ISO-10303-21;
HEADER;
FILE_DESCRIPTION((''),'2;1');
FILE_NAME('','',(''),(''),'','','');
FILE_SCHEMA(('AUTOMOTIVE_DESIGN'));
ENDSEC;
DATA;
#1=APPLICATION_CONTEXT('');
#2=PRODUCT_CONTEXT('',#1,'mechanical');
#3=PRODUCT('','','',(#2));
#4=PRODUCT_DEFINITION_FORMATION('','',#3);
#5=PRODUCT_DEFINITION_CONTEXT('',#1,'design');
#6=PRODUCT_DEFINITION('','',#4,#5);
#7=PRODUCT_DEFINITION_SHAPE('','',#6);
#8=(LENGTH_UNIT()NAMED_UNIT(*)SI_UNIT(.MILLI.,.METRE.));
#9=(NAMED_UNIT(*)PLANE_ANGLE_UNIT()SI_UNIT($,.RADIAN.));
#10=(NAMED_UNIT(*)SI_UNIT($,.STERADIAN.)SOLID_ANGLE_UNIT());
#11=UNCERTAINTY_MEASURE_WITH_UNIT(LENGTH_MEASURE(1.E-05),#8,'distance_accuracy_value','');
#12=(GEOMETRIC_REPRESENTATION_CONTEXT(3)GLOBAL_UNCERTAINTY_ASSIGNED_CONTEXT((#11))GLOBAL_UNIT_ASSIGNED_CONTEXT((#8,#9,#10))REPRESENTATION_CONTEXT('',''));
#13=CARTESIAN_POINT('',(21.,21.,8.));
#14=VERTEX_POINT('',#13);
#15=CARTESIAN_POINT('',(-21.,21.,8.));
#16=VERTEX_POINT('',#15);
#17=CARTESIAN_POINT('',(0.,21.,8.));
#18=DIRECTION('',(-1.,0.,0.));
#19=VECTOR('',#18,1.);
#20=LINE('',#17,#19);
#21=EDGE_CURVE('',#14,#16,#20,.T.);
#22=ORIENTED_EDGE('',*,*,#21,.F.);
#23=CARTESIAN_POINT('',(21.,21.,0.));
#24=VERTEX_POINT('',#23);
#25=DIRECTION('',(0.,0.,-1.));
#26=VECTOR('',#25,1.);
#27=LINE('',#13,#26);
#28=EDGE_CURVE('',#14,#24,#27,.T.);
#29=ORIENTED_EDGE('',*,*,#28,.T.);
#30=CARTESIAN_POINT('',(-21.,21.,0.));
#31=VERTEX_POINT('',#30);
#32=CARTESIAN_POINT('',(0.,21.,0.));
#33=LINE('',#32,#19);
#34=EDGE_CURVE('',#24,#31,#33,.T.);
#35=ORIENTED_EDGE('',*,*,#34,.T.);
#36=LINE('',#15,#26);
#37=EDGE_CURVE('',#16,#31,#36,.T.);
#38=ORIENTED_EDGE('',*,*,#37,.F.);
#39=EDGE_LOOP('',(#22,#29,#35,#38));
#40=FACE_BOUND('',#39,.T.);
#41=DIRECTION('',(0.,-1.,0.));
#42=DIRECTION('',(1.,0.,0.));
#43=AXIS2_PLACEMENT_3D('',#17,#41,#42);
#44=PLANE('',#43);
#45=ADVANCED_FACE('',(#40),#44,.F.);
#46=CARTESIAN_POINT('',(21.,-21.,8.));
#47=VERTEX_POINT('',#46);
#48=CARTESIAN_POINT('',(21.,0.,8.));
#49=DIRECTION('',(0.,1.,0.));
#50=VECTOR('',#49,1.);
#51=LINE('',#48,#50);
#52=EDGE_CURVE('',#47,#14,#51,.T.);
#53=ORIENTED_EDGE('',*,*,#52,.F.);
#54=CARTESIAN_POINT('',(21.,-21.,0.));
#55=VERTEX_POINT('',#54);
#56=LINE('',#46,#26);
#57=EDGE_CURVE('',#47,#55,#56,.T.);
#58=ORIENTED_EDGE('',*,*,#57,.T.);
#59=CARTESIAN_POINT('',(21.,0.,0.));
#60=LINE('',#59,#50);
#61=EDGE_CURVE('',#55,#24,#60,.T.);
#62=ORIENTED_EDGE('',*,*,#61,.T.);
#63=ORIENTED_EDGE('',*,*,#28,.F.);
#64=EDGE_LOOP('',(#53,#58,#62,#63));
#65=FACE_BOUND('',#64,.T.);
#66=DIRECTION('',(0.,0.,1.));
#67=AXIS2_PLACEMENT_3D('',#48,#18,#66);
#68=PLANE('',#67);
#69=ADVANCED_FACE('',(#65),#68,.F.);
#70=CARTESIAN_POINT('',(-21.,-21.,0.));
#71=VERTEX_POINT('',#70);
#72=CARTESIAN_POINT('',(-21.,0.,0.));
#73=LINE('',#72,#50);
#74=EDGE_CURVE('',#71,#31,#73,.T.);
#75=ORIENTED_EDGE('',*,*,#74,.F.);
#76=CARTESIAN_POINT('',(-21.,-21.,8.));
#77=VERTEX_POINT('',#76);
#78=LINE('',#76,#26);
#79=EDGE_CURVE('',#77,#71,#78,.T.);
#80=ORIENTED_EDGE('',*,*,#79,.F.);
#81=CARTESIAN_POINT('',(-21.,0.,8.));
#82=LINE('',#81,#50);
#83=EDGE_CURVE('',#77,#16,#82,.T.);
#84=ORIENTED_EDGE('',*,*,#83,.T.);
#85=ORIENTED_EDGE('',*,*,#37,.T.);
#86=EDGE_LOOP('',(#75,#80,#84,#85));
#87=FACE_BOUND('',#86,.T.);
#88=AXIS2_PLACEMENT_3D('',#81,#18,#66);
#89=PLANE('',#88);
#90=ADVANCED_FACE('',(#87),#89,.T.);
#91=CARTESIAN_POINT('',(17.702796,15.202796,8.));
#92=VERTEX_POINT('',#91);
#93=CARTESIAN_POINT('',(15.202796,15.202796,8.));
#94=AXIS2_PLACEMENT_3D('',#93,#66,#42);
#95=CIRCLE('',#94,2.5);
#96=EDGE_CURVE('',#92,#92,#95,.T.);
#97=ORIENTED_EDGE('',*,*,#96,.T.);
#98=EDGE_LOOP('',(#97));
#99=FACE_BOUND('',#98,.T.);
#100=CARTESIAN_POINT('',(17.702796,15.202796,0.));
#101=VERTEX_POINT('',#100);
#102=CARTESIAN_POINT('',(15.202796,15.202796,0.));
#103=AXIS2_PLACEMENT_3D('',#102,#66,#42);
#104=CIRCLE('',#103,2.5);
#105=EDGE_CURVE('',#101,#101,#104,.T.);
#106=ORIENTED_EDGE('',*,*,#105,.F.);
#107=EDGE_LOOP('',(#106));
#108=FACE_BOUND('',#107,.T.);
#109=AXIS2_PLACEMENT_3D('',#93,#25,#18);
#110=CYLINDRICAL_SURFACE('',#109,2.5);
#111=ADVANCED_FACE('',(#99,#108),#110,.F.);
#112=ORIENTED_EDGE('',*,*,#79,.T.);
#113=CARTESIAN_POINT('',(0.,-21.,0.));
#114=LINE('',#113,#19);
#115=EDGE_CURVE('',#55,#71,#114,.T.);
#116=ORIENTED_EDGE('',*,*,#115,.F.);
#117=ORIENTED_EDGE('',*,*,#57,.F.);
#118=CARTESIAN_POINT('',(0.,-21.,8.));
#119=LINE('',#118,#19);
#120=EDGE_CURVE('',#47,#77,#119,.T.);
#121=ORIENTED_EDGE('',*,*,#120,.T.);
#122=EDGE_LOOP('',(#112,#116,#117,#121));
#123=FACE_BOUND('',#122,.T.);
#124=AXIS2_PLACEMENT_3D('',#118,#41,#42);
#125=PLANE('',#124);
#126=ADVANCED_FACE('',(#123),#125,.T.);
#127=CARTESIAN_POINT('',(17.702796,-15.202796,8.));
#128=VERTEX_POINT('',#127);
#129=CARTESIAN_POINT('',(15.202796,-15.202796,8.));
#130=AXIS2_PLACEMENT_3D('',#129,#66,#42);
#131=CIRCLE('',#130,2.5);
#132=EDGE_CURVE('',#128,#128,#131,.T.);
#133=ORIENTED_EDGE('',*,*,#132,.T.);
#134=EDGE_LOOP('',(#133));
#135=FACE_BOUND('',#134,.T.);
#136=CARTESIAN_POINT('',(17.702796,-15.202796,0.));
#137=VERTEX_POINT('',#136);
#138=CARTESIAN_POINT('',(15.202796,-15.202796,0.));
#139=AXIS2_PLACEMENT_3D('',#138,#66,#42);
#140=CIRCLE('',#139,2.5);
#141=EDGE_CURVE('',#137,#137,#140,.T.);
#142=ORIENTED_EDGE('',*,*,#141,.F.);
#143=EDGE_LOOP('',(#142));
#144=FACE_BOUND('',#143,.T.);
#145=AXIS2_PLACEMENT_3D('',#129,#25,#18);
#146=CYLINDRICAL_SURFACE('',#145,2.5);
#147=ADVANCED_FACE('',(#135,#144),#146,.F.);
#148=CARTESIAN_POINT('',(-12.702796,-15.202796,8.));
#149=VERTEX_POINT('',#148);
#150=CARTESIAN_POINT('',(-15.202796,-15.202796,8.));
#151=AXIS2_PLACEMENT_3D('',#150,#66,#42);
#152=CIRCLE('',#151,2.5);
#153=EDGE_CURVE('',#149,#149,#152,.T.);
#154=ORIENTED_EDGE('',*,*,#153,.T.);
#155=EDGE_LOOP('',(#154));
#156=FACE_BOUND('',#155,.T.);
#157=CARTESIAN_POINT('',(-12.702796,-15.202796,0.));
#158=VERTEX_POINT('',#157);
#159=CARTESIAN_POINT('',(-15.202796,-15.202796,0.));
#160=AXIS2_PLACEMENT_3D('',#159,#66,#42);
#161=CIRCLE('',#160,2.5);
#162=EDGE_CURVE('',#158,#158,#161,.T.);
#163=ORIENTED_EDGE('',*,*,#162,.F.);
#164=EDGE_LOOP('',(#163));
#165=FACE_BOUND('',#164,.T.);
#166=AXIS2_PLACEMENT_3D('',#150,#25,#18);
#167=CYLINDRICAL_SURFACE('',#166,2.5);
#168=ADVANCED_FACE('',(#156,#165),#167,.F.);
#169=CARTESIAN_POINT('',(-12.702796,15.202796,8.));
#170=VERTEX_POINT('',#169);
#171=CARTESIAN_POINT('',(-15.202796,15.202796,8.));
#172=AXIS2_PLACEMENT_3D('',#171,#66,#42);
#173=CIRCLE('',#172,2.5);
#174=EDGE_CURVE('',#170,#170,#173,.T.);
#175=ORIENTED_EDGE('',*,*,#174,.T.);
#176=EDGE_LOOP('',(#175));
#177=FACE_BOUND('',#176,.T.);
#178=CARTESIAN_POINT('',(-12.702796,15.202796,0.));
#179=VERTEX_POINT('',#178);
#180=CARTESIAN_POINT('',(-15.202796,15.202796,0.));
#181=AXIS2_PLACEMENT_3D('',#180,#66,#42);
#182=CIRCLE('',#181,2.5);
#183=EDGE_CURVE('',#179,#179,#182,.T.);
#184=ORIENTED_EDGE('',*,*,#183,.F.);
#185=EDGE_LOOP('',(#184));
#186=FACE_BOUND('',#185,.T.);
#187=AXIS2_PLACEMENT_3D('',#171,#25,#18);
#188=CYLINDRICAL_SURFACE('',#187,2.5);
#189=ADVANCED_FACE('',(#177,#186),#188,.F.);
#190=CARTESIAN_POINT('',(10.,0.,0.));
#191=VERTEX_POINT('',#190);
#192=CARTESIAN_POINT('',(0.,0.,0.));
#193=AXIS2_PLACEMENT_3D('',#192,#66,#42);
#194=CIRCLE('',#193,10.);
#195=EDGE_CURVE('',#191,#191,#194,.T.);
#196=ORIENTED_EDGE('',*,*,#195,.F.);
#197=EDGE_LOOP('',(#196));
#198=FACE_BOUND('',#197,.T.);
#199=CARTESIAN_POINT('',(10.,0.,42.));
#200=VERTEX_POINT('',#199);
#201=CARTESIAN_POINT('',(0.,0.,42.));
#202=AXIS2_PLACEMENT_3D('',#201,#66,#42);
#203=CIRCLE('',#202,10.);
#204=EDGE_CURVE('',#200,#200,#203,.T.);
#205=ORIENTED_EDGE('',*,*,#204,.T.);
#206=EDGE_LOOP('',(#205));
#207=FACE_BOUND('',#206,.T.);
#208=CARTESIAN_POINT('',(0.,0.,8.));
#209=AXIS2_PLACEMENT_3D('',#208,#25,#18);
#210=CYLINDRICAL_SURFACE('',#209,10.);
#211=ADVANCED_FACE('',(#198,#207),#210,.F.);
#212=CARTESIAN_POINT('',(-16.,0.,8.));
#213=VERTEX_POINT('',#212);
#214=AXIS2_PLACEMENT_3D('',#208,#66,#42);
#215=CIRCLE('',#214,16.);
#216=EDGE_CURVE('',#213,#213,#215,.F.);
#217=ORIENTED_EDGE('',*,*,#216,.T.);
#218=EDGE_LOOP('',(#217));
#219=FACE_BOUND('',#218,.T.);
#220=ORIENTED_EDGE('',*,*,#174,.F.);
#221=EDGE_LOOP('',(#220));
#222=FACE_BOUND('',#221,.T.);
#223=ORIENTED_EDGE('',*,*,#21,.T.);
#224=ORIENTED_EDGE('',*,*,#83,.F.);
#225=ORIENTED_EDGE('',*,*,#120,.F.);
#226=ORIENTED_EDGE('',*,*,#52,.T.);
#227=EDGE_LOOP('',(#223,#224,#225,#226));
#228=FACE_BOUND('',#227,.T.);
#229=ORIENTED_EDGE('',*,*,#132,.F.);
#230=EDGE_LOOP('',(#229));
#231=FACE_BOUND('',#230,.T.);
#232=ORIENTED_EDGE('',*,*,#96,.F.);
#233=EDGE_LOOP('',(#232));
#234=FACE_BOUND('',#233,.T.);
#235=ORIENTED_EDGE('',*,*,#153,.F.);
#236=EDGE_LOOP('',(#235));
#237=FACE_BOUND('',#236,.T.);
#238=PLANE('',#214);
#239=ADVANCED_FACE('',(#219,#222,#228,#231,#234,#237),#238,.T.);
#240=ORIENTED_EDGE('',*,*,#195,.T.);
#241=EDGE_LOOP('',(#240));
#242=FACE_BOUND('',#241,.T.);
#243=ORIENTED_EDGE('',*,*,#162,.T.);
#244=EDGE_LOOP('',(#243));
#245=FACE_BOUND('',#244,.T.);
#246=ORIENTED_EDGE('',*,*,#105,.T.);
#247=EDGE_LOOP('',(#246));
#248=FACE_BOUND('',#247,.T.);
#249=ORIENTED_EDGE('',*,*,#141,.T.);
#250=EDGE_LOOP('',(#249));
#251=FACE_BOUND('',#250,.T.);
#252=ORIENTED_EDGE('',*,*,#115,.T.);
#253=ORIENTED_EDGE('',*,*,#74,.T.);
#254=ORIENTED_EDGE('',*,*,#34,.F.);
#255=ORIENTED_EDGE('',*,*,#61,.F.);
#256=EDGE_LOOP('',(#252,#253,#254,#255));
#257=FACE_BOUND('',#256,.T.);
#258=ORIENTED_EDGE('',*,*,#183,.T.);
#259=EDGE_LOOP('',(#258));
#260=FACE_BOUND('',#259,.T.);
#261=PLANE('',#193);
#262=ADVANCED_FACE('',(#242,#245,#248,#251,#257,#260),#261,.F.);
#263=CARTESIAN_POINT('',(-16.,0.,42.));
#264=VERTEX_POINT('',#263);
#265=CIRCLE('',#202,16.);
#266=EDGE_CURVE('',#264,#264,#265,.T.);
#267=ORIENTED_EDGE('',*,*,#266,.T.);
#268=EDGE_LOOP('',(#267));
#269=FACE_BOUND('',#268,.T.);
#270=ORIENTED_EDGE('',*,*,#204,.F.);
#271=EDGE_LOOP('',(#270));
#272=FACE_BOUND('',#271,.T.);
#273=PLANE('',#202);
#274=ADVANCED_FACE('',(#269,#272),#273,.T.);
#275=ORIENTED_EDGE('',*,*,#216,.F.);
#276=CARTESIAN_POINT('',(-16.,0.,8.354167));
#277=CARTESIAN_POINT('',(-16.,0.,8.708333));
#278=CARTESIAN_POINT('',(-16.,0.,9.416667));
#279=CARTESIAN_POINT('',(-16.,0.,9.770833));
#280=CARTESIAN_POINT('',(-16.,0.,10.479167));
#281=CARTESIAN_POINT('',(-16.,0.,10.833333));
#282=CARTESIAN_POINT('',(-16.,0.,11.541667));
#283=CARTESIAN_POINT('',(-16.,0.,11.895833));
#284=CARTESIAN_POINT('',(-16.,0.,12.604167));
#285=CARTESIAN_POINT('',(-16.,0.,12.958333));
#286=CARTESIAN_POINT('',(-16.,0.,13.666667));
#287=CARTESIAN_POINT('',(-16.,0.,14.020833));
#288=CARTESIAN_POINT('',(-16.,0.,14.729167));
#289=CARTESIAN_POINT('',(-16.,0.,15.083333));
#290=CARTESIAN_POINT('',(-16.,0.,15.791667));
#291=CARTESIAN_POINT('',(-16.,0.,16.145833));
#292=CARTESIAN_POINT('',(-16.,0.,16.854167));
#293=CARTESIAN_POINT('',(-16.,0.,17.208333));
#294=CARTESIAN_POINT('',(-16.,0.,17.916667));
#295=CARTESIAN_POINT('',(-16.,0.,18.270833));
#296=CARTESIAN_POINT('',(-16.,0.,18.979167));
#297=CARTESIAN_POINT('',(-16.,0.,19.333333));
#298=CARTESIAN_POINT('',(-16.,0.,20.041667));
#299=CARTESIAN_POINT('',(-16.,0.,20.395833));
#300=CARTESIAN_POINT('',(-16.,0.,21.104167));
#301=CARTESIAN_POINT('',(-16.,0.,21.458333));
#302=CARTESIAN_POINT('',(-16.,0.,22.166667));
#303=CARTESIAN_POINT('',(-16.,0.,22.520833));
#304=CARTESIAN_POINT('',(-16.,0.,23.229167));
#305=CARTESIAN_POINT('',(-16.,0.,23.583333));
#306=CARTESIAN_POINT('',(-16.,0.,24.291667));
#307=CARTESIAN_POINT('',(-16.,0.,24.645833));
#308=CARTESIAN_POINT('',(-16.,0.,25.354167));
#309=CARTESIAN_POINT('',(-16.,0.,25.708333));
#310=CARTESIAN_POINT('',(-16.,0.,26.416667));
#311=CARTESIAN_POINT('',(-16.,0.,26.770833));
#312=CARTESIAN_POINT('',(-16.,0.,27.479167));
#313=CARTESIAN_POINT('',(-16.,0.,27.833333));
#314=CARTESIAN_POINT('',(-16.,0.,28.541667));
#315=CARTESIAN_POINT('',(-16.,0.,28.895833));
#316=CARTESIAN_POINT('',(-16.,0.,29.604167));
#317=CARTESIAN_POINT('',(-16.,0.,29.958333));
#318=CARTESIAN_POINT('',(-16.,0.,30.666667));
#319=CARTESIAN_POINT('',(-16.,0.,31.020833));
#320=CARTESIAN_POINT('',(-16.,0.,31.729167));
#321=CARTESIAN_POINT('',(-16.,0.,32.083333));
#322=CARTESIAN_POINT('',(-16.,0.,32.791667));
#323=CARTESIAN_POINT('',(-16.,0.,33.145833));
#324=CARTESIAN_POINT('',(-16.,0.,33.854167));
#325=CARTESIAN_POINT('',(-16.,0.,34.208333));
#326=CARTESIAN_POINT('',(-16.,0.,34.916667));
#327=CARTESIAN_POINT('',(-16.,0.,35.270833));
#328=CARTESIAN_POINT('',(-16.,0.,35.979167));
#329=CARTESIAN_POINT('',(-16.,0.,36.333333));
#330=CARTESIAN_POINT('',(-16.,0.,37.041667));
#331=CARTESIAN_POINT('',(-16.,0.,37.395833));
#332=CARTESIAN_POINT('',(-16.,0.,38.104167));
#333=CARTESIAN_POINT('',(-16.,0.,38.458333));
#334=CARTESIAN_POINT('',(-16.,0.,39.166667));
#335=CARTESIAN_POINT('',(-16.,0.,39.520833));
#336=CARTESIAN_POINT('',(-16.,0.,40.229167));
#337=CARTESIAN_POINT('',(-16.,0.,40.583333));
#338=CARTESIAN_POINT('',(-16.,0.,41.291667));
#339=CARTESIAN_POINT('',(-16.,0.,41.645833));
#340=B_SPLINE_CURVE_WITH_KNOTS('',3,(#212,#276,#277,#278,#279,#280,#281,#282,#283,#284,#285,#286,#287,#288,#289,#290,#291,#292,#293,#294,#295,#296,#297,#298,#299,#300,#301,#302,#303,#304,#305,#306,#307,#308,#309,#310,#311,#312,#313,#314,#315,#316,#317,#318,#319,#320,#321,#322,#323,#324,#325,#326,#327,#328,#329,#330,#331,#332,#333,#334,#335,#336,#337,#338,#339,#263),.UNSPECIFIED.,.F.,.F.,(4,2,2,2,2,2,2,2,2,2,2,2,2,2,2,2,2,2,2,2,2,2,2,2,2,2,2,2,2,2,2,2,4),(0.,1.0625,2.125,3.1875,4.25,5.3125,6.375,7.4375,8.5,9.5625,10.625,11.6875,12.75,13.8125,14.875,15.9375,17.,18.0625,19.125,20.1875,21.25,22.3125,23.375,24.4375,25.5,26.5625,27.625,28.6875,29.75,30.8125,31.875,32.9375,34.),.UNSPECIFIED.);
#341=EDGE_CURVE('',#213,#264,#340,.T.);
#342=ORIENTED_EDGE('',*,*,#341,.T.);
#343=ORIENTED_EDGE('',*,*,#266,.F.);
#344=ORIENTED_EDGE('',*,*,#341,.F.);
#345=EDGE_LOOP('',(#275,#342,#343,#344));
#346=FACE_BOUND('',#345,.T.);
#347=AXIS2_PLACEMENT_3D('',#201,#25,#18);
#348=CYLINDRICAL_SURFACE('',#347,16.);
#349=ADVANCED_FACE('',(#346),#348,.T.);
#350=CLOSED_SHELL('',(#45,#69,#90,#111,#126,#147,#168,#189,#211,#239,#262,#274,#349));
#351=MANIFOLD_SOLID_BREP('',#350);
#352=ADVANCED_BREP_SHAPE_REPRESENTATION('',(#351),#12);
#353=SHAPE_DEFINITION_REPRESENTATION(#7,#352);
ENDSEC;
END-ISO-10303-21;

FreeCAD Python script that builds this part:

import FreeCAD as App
import Part
import Sketcher

doc = App.newDocument("Part")
params = doc.addObject("Spreadsheet::Sheet", "Params")
for row, (alias, value) in enumerate([
    ("sketch1_diameter", "5 mm"),
    ("sketch1_diameter2", "20 mm"),
    ("sketch1_width", "42 mm"),
    ("pad1_length", "8 mm"),
    ("sketch2_diameter", "32 mm"),
    ("sketch2_diameter2", "20 mm"),
    ("pad2_length", "42 mm"),
], start=1):
    params.set(f"A{row}", alias)
    params.set(f"B{row}", "=" + value)
    params.setAlias(f"B{row}", alias)

body = doc.addObject("PartDesign::Body", "Body")

# Sketch on XY plane
sketch1 = doc.addObject("Sketcher::SketchObject", "Sketch")
body.addObject(sketch1)
sketch1.AttachmentSupport = (doc.XY_Plane, [""])
sketch1.MapMode = "FlatFace"
sketch1.addGeometry([
    Part.LineSegment(App.Vector(-21, 21, 0), App.Vector(-21, -21, 0)),  # 0
    Part.LineSegment(App.Vector(-21, -21, 0), App.Vector(21, -21, 0)),  # 1
    Part.LineSegment(App.Vector(21, -21, 0), App.Vector(21, 21, 0)),  # 2
    Part.LineSegment(App.Vector(21, 21, 0), App.Vector(-21, 21, 0)),  # 3
    Part.Circle(App.Vector(-15.2, -15.2, 0), App.Vector(0, 0, 1), 2.5),  # 4
    Part.Circle(App.Vector(15.2, -15.2, 0), App.Vector(0, 0, 1), 2.5),  # 5
    Part.Circle(App.Vector(-15.2, 15.2, 0), App.Vector(0, 0, 1), 2.5),  # 6
    Part.Circle(App.Vector(15.2, 15.2, 0), App.Vector(0, 0, 1), 2.5),  # 7
    Part.Circle(App.Vector(0, 0, 0), App.Vector(0, 0, 1), 10),  # 8
], False)
sketch1.addConstraint([
    Sketcher.Constraint("Coincident", 0, 2, 1, 1),
    Sketcher.Constraint("Coincident", 1, 2, 2, 1),
    Sketcher.Constraint("Coincident", 2, 2, 3, 1),
    Sketcher.Constraint("Coincident", 3, 2, 0, 1),
    Sketcher.Constraint("Vertical", 0),
    Sketcher.Constraint("Horizontal", 1),
    Sketcher.Constraint("Vertical", 2),
    Sketcher.Constraint("Horizontal", 3),
    Sketcher.Constraint("Coincident", 8, 3, -1, 1),
    Sketcher.Constraint("Equal", 4, 5),
    Sketcher.Constraint("Equal", 5, 6),
    Sketcher.Constraint("Equal", 6, 7),
    Sketcher.Constraint("Symmetric", 5, 3, 6, 3, -1, 1),
    Sketcher.Constraint("Symmetric", 4, 3, 7, 3, -1, 1),
    Sketcher.Constraint("Symmetric", 0, 2, 2, 2, -1, 1),
    Sketcher.Constraint("Symmetric", 4, 3, 5, 3, -2),
    Sketcher.Constraint("Equal", 3, 0),
    Sketcher.Constraint("Diameter", 4, 5.0),
    Sketcher.Constraint("Diameter", 8, 20.0),
    Sketcher.Constraint("DistanceX", 1, 1, 1, 2, 42.0),
    Sketcher.Constraint("DistanceX", 4, 3, 5, 3, 30.405592),
    Sketcher.Constraint("DistanceY", 4, 3, 6, 3, 30.405592),
])
sketch1.setExpression("Constraints[17]", "Params.sketch1_diameter")
sketch1.setExpression("Constraints[18]", "Params.sketch1_diameter2")
sketch1.setExpression("Constraints[19]", "Params.sketch1_width")
pad1 = doc.addObject("PartDesign::Pad", "Pad")
body.addObject(pad1)
pad1.Profile = sketch1
pad1.setExpression("Length", "Params.pad1_length")

# Sketch on XY plane
sketch2 = doc.addObject("Sketcher::SketchObject", "Sketch001")
body.addObject(sketch2)
sketch2.AttachmentSupport = (doc.XY_Plane, [""])
sketch2.MapMode = "FlatFace"
sketch2.addGeometry([
    Part.Circle(App.Vector(0, 0, 0), App.Vector(0, 0, 1), 16),
    Part.Circle(App.Vector(0, 0, 0), App.Vector(0, 0, 1), 10),
], False)
sketch2.addConstraint([
    Sketcher.Constraint("Coincident", 0, 3, -1, 1),
    Sketcher.Constraint("Coincident", 1, 3, -1, 1),
    Sketcher.Constraint("Diameter", 0, 32.0),
    Sketcher.Constraint("Diameter", 1, 20.0),
])
sketch2.setExpression("Constraints[2]", "Params.sketch2_diameter")
sketch2.setExpression("Constraints[3]", "Params.sketch2_diameter2")
pad2 = doc.addObject("PartDesign::Pad", "Pad001")
body.addObject(pad2)
pad2.Profile = sketch2
pad2.setExpression("Length", "Params.pad2_length")

doc.recompute()
